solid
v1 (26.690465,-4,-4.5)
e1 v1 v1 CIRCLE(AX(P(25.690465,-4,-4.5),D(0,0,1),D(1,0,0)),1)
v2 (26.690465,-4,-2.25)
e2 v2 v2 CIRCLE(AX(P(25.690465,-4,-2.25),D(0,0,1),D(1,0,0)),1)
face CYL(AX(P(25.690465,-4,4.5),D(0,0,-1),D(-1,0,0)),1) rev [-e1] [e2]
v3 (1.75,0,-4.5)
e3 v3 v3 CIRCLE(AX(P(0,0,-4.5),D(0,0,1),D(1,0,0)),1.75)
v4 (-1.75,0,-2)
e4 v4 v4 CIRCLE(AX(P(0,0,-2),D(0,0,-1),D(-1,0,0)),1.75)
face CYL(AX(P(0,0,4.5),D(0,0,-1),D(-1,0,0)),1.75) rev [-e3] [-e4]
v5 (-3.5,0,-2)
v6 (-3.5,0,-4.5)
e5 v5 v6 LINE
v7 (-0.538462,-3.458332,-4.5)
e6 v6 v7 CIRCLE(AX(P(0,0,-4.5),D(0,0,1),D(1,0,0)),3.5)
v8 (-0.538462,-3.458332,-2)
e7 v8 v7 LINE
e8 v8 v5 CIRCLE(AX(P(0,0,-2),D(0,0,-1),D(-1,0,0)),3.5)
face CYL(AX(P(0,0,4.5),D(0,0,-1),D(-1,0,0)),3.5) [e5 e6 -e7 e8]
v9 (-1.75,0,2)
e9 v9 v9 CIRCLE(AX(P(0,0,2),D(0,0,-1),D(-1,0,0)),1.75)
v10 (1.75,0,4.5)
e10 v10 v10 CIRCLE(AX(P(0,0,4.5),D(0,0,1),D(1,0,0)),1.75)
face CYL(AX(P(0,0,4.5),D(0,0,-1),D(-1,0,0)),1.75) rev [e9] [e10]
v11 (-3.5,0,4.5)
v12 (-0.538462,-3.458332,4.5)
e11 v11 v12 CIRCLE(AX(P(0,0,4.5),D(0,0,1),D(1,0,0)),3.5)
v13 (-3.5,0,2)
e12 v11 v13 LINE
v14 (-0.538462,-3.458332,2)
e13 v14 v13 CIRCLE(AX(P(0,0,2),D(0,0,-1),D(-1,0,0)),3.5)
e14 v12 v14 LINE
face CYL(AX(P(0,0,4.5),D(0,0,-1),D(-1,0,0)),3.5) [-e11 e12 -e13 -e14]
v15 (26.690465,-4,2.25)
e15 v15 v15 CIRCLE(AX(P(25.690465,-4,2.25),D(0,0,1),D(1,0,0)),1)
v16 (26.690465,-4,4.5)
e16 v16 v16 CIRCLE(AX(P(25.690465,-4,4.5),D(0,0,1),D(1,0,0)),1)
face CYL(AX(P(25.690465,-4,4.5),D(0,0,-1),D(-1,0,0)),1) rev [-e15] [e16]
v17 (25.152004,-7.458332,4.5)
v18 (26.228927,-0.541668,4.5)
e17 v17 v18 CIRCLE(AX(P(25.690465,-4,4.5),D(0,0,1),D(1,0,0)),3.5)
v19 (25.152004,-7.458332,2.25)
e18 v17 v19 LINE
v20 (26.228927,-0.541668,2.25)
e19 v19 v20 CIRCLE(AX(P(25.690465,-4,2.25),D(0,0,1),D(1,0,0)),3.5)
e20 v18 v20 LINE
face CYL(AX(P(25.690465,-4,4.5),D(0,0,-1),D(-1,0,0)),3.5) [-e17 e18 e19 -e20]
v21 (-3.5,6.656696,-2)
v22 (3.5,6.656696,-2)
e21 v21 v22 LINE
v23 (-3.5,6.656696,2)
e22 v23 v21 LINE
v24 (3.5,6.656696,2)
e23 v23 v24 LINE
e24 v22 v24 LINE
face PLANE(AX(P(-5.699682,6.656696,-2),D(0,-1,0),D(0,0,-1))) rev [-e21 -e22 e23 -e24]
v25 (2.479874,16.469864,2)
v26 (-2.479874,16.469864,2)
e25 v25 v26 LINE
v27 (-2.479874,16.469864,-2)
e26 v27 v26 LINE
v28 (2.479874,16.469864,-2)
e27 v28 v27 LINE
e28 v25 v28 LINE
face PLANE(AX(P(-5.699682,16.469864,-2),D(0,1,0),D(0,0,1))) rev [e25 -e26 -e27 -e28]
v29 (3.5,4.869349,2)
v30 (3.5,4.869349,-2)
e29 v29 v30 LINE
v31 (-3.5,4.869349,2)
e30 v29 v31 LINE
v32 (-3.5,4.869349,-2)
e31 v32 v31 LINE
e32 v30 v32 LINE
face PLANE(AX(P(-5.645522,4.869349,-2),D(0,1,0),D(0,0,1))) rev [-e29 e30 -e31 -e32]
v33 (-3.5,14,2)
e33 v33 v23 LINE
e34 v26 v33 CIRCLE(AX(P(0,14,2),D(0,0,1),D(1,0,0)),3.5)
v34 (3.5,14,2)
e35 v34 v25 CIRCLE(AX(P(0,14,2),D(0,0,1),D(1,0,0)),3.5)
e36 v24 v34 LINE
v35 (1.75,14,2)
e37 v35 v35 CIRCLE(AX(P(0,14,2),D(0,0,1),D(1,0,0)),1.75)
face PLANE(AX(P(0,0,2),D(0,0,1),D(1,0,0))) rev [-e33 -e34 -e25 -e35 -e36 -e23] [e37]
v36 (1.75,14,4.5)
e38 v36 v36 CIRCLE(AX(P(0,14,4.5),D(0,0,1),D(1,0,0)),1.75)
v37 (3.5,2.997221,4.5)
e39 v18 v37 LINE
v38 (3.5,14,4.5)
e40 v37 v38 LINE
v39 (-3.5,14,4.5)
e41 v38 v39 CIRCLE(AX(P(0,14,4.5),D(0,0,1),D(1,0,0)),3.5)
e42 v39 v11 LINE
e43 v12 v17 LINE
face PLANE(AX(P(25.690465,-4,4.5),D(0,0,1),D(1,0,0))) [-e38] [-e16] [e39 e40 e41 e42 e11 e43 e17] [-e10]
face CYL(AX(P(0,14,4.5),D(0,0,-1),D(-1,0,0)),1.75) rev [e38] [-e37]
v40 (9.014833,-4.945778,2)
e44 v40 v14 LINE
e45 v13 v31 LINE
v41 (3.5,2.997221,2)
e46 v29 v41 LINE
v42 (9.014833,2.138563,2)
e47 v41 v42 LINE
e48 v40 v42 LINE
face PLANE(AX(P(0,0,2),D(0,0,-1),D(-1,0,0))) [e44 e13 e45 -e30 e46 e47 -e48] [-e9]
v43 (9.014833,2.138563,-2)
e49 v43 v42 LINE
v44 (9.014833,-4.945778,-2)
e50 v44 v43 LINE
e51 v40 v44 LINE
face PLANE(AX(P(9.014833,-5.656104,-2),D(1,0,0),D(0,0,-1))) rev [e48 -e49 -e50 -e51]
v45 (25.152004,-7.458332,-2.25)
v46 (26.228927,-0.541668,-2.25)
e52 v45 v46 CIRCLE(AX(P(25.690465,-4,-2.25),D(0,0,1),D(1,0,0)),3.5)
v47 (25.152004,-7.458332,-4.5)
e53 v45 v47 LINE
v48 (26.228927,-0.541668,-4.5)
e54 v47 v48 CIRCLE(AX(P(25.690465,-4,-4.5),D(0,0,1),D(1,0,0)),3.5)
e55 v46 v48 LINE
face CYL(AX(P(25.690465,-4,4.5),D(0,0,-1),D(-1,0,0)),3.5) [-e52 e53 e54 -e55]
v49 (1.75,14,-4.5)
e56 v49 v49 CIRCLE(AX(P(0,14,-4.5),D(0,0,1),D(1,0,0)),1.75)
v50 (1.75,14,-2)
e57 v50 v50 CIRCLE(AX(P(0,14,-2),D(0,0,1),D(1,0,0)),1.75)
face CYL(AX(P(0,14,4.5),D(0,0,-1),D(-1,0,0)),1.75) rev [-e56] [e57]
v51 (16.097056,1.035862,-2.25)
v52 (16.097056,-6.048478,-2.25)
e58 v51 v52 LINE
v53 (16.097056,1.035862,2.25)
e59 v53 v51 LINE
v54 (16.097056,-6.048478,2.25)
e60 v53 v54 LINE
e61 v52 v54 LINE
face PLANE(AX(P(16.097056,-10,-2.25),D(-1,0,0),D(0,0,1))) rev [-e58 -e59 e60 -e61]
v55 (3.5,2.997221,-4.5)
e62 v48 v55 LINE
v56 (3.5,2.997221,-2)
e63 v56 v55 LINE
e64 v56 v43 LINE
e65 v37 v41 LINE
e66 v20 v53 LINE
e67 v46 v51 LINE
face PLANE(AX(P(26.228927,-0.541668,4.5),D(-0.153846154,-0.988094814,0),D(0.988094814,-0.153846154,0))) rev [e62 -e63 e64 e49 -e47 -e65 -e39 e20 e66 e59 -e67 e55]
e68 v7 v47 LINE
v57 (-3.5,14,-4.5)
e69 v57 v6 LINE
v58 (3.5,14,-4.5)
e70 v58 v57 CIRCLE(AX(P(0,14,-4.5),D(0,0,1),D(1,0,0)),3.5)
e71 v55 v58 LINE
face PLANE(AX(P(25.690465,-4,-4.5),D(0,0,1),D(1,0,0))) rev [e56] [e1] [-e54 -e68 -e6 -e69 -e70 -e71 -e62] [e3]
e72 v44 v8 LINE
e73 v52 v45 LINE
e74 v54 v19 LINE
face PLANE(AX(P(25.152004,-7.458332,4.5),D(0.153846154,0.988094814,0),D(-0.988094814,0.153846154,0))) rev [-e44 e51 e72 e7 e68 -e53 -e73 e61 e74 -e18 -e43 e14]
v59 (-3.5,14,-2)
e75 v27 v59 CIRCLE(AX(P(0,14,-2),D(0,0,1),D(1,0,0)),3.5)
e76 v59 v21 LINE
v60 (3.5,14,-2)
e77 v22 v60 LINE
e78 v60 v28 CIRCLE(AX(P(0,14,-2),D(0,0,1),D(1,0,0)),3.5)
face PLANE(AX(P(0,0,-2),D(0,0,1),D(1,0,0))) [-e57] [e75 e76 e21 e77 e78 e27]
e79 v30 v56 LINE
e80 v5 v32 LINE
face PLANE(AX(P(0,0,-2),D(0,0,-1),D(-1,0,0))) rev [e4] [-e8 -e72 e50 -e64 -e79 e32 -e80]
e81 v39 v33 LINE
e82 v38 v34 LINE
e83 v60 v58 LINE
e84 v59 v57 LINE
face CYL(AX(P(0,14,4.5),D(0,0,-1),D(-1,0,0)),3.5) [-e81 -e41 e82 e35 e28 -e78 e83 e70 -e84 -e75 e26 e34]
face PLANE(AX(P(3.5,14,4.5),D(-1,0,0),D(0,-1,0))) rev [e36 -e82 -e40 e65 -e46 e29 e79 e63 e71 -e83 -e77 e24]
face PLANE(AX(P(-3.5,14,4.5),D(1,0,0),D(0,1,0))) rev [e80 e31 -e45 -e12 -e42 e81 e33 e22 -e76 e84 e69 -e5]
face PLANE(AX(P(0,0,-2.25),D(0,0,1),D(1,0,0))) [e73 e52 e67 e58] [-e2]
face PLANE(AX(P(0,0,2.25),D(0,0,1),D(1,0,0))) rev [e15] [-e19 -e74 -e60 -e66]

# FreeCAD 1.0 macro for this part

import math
import FreeCAD as App
import Part
import Sketcher

V = App.Vector
Q = App.Units.Quantity

doc = App.newDocument("Part")
body = doc.addObject("PartDesign::Body", "Body")

sketch1 = body.newObject("Sketcher::SketchObject", "Sketch")
sketch1.AttachmentSupport = (doc.getObject("XY_Plane"), [""])
sketch1.MapMode = "FlatFace"
sketch1.addGeometry([
    Part.LineSegment(V(-0.5, -3.5, 0), V(25.2, -7.5, 0)),
    Part.ArcOfCircle(Part.Circle(V(25.7, -4, 0), V(0, 0, 1), 3.5), math.radians(-99), math.radians(81)),
    Part.LineSegment(V(26.2, -0.5, 0), V(3.5, 3, 0)),
    Part.LineSegment(V(3.5, 3, 0), V(3.5, 14, 0)),
    Part.ArcOfCircle(Part.Circle(V(0, 14, 0), V(0, 0, 1), 3.5), math.radians(0), math.radians(180)),
    Part.LineSegment(V(-3.5, 14, 0), V(-3.5, 0, 0)),
    Part.ArcOfCircle(Part.Circle(V(0, 0, 0), V(0, 0, 1), 3.5), math.radians(180), math.radians(261)),
    Part.Circle(V(25.7, -4, 0), V(0, 0, 1), 1),
    Part.Circle(V(0, 0, 0), V(0, 0, 1), 1.8),
    Part.Circle(V(0, 14, 0), V(0, 0, 1), 1.8),
], False)
sketch1.addConstraint([
    Sketcher.Constraint("Tangent", 0, 2, 1, 1),
    Sketcher.Constraint("Tangent", 1, 2, 2, 1),
    Sketcher.Constraint("Coincident", 2, 2, 3, 1),
    Sketcher.Constraint("Tangent", 3, 2, 4, 1),
    Sketcher.Constraint("Tangent", 4, 2, 5, 1),
    Sketcher.Constraint("Tangent", 5, 2, 6, 1),
    Sketcher.Constraint("Tangent", 6, 2, 0, 1),
    Sketcher.Constraint("Vertical", 3),
    Sketcher.Constraint("Vertical", 5),
    Sketcher.Constraint("Coincident", 6, 3, -1, 1),
    Sketcher.Constraint("Coincident", 8, 3, -1, 1),
    Sketcher.Constraint("Coincident", 7, 3, 1, 3),
    Sketcher.Constraint("Coincident", 9, 3, 4, 3),
    Sketcher.Constraint("Equal", 1, 4),
    Sketcher.Constraint("Equal", 4, 6),
    Sketcher.Constraint("Equal", 8, 9),
    Sketcher.Constraint("Parallel", 0, 2),
    Sketcher.Constraint("Diameter", 7, Q("2 mm")),
    Sketcher.Constraint("Diameter", 8, Q("3.5 mm")),
    Sketcher.Constraint("Radius", 1, Q("3.5 mm")),
    Sketcher.Constraint("DistanceY", 5, 2, 5, 1, Q("14 mm")),
    Sketcher.Constraint("Distance", 0, Q("26 mm")),
    Sketcher.Constraint("DistanceY", 1, 3, -1, 1, Q("4 mm")),
])
pad1 = body.newObject("PartDesign::Pad", "Pad")
pad1.Profile = sketch1
pad1.Length = 9
pad1.Midplane = True

sketch2 = body.newObject("Sketcher::SketchObject", "Sketch001")
sketch2.AttachmentSupport = (doc.getObject("XY_Plane"), [""])
sketch2.MapMode = "FlatFace"
sketch2.addGeometry([
    Part.LineSegment(V(-6, 16, 0), V(-6, 7, 0)),
    Part.LineSegment(V(-6, 7, 0), V(4, 7, 0)),
    Part.LineSegment(V(4, 7, 0), V(4, 16, 0)),
    Part.LineSegment(V(4, 16, 0), V(-6, 16, 0)),
    Part.LineSegment(V(-6, 5, 0), V(-6, -6, 0)),
    Part.LineSegment(V(-6, -6, 0), V(9, -6, 0)),
    Part.LineSegment(V(9, -6, 0), V(9, 5, 0)),
    Part.LineSegment(V(9, 5, 0), V(-6, 5, 0)),
], False)
sketch2.addConstraint([
    Sketcher.Constraint("Coincident", 0, 2, 1, 1),
    Sketcher.Constraint("Coincident", 1, 2, 2, 1),
    Sketcher.Constraint("Coincident", 2, 2, 3, 1),
    Sketcher.Constraint("Coincident", 3, 2, 0, 1),
    Sketcher.Constraint("Coincident", 4, 2, 5, 1),
    Sketcher.Constraint("Coincident", 5, 2, 6, 1),
    Sketcher.Constraint("Coincident", 6, 2, 7, 1),
    Sketcher.Constraint("Coincident", 7, 2, 4, 1),
    Sketcher.Constraint("Vertical", 0),
    Sketcher.Constraint("Horizontal", 1),
    Sketcher.Constraint("Vertical", 2),
    Sketcher.Constraint("Horizontal", 3),
    Sketcher.Constraint("Vertical", 4),
    Sketcher.Constraint("Horizontal", 5),
    Sketcher.Constraint("Vertical", 6),
    Sketcher.Constraint("Horizontal", 7),
    Sketcher.Constraint("DistanceX", -1, 1, 1, 2, Q("3.5 mm")),
    Sketcher.Constraint("DistanceY", 4, 2, 0, 2, Q("12.3128 mm")),
    Sketcher.Constraint("DistanceX", 1, 1, 1, 2, Q("9.199682 mm")),
    Sketcher.Constraint("DistanceX", 5, 1, 5, 2, Q("14.660355 mm")),
    Sketcher.Constraint("DistanceY", 0, 2, 0, 1, Q("9.813168 mm")),
    Sketcher.Constraint("DistanceY", 4, 2, 4, 1, Q("10.525454 mm")),
    Sketcher.Constraint("DistanceX", 4, 2, -1, 1, Q("5.645522 mm")),
    Sketcher.Constraint("DistanceY", -1, 1, 6, 2, Q("4.869349 mm")),
])
pocket1 = body.newObject("PartDesign::Pocket", "Pocket")
pocket1.Profile = sketch2
pocket1.Length = 4
pocket1.Midplane = True

sketch3 = body.newObject("Sketcher::SketchObject", "Sketch002")
sketch3.AttachmentSupport = (doc.getObject("XY_Plane"), [""])
sketch3.MapMode = "FlatFace"
sketch3.addGeometry([
    Part.LineSegment(V(16, 2, 0), V(16, -10, 0)),
    Part.LineSegment(V(16, -10, 0), V(35, -10, 0)),
    Part.LineSegment(V(35, -10, 0), V(35, 2, 0)),
    Part.LineSegment(V(35, 2, 0), V(16, 2, 0)),
], False)
sketch3.addConstraint([
    Sketcher.Constraint("Coincident", 0, 2, 1, 1),
    Sketcher.Constraint("Coincident", 1, 2, 2, 1),
    Sketcher.Constraint("Coincident", 2, 2, 3, 1),
    Sketcher.Constraint("Coincident", 3, 2, 0, 1),
    Sketcher.Constraint("Vertical", 0),
    Sketcher.Constraint("Horizontal", 1),
    Sketcher.Constraint("Vertical", 2),
    Sketcher.Constraint("Horizontal", 3),
    Sketcher.Constraint("DistanceY", 0, 2, 0, 1, Q("12 mm")),
    Sketcher.Constraint("DistanceY", 0, 2, -1, 1, Q("10 mm")),
    Sketcher.Constraint("DistanceX", 1, 1, 1, 2, Q("19.186819 mm")),
    Sketcher.Constraint("DistanceX", -1, 1, 0, 2, Q("16.097056 mm")),
])
pocket2 = body.newObject("PartDesign::Pocket", "Pocket001")
pocket2.Profile = sketch3
pocket2.Length = 4.5
pocket2.Midplane = True

doc.recompute()
